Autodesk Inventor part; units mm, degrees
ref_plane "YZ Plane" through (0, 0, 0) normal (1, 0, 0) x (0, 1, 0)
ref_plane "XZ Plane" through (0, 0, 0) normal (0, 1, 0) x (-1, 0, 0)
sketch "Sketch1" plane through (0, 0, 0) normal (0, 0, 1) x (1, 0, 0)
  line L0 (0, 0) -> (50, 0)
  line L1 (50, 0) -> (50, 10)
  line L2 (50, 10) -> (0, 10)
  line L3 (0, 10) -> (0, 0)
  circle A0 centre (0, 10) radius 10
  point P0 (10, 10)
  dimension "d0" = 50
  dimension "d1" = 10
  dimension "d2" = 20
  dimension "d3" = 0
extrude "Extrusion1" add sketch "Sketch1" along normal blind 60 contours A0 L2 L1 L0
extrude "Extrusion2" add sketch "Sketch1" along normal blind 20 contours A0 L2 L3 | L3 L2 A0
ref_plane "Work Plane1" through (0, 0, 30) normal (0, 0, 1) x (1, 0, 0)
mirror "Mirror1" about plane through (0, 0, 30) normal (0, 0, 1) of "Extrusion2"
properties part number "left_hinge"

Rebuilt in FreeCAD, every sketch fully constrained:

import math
import FreeCAD as App
import Part
import Sketcher
Q = App.Units.Quantity

doc = App.newDocument("Part")
body = doc.addObject("PartDesign::Body", "Body")

# Sketch on XY plane
sketch1 = body.newObject("Sketcher::SketchObject", "Sketch")
sketch1.AttachmentSupport = (doc.getObject("XY_Plane"), [""])
sketch1.MapMode = "FlatFace"
sketch1.addGeometry([
    Part.ArcOfCircle(Part.Circle(App.Vector(0, 10, 0), App.Vector(0, 0, 1), 10), math.radians(-90), math.radians(0)),
    Part.LineSegment(App.Vector(0, 0, 0), App.Vector(50, 0, 0)),
    Part.LineSegment(App.Vector(50, 0, 0), App.Vector(50, 10, 0)),
    Part.LineSegment(App.Vector(50, 10, 0), App.Vector(10, 10, 0)),
], False)
sketch1.addConstraint([
    Sketcher.Constraint("Tangent", 0, 1, 1, 1),
    Sketcher.Constraint("Coincident", 1, 2, 2, 1),
    Sketcher.Constraint("Coincident", 2, 2, 3, 1),
    Sketcher.Constraint("Coincident", 3, 2, 0, 2),
    Sketcher.Constraint("Horizontal", 1),
    Sketcher.Constraint("Vertical", 2),
    Sketcher.Constraint("Horizontal", 3),
    Sketcher.Constraint("Coincident", 0, 1, -1, 1),
    Sketcher.Constraint("Horizontal", 0, 3, 2, 2),
    Sketcher.Constraint("Radius", 0, Q("10 mm")),
    Sketcher.Constraint("DistanceX", 1, 1, 1, 2, Q("50 mm")),
])
pad1 = body.newObject("PartDesign::Pad", "Pad")
pad1.Profile = sketch1
pad1.Length = 60

# Sketch on XY plane
sketch2 = body.newObject("Sketcher::SketchObject", "Sketch001")
sketch2.AttachmentSupport = (doc.getObject("XY_Plane"), [""])
sketch2.MapMode = "FlatFace"
sketch2.addGeometry(Part.Circle(App.Vector(0, 10, 0), App.Vector(0, 0, 1), 10), False)
sketch2.addConstraint([
    Sketcher.Constraint("PointOnObject", 0, 3, -2),
    Sketcher.Constraint("Diameter", 0, Q("20 mm")),
    Sketcher.Constraint("DistanceY", -1, 1, 0, 3, Q("10 mm")),
])
pad2 = body.newObject("PartDesign::Pad", "Pad001")
pad2.Profile = sketch2
pad2.Length = 20
doc.recompute()

datumplane = body.newObject("PartDesign::Plane", "DatumPlane")
datumplane.AttachmentSupport = (doc.getObject("XY_Plane"), [""])
datumplane.MapMode = "FlatFace"
datumplane.AttachmentOffset = App.Placement(App.Vector(0, 0, 30), App.Rotation())
mirrored = body.newObject("PartDesign::Mirrored", "Mirrored")
mirrored.Originals = [pad2]
mirrored.MirrorPlane = (datumplane, [""])
body.Tip = mirrored

doc.recompute()
